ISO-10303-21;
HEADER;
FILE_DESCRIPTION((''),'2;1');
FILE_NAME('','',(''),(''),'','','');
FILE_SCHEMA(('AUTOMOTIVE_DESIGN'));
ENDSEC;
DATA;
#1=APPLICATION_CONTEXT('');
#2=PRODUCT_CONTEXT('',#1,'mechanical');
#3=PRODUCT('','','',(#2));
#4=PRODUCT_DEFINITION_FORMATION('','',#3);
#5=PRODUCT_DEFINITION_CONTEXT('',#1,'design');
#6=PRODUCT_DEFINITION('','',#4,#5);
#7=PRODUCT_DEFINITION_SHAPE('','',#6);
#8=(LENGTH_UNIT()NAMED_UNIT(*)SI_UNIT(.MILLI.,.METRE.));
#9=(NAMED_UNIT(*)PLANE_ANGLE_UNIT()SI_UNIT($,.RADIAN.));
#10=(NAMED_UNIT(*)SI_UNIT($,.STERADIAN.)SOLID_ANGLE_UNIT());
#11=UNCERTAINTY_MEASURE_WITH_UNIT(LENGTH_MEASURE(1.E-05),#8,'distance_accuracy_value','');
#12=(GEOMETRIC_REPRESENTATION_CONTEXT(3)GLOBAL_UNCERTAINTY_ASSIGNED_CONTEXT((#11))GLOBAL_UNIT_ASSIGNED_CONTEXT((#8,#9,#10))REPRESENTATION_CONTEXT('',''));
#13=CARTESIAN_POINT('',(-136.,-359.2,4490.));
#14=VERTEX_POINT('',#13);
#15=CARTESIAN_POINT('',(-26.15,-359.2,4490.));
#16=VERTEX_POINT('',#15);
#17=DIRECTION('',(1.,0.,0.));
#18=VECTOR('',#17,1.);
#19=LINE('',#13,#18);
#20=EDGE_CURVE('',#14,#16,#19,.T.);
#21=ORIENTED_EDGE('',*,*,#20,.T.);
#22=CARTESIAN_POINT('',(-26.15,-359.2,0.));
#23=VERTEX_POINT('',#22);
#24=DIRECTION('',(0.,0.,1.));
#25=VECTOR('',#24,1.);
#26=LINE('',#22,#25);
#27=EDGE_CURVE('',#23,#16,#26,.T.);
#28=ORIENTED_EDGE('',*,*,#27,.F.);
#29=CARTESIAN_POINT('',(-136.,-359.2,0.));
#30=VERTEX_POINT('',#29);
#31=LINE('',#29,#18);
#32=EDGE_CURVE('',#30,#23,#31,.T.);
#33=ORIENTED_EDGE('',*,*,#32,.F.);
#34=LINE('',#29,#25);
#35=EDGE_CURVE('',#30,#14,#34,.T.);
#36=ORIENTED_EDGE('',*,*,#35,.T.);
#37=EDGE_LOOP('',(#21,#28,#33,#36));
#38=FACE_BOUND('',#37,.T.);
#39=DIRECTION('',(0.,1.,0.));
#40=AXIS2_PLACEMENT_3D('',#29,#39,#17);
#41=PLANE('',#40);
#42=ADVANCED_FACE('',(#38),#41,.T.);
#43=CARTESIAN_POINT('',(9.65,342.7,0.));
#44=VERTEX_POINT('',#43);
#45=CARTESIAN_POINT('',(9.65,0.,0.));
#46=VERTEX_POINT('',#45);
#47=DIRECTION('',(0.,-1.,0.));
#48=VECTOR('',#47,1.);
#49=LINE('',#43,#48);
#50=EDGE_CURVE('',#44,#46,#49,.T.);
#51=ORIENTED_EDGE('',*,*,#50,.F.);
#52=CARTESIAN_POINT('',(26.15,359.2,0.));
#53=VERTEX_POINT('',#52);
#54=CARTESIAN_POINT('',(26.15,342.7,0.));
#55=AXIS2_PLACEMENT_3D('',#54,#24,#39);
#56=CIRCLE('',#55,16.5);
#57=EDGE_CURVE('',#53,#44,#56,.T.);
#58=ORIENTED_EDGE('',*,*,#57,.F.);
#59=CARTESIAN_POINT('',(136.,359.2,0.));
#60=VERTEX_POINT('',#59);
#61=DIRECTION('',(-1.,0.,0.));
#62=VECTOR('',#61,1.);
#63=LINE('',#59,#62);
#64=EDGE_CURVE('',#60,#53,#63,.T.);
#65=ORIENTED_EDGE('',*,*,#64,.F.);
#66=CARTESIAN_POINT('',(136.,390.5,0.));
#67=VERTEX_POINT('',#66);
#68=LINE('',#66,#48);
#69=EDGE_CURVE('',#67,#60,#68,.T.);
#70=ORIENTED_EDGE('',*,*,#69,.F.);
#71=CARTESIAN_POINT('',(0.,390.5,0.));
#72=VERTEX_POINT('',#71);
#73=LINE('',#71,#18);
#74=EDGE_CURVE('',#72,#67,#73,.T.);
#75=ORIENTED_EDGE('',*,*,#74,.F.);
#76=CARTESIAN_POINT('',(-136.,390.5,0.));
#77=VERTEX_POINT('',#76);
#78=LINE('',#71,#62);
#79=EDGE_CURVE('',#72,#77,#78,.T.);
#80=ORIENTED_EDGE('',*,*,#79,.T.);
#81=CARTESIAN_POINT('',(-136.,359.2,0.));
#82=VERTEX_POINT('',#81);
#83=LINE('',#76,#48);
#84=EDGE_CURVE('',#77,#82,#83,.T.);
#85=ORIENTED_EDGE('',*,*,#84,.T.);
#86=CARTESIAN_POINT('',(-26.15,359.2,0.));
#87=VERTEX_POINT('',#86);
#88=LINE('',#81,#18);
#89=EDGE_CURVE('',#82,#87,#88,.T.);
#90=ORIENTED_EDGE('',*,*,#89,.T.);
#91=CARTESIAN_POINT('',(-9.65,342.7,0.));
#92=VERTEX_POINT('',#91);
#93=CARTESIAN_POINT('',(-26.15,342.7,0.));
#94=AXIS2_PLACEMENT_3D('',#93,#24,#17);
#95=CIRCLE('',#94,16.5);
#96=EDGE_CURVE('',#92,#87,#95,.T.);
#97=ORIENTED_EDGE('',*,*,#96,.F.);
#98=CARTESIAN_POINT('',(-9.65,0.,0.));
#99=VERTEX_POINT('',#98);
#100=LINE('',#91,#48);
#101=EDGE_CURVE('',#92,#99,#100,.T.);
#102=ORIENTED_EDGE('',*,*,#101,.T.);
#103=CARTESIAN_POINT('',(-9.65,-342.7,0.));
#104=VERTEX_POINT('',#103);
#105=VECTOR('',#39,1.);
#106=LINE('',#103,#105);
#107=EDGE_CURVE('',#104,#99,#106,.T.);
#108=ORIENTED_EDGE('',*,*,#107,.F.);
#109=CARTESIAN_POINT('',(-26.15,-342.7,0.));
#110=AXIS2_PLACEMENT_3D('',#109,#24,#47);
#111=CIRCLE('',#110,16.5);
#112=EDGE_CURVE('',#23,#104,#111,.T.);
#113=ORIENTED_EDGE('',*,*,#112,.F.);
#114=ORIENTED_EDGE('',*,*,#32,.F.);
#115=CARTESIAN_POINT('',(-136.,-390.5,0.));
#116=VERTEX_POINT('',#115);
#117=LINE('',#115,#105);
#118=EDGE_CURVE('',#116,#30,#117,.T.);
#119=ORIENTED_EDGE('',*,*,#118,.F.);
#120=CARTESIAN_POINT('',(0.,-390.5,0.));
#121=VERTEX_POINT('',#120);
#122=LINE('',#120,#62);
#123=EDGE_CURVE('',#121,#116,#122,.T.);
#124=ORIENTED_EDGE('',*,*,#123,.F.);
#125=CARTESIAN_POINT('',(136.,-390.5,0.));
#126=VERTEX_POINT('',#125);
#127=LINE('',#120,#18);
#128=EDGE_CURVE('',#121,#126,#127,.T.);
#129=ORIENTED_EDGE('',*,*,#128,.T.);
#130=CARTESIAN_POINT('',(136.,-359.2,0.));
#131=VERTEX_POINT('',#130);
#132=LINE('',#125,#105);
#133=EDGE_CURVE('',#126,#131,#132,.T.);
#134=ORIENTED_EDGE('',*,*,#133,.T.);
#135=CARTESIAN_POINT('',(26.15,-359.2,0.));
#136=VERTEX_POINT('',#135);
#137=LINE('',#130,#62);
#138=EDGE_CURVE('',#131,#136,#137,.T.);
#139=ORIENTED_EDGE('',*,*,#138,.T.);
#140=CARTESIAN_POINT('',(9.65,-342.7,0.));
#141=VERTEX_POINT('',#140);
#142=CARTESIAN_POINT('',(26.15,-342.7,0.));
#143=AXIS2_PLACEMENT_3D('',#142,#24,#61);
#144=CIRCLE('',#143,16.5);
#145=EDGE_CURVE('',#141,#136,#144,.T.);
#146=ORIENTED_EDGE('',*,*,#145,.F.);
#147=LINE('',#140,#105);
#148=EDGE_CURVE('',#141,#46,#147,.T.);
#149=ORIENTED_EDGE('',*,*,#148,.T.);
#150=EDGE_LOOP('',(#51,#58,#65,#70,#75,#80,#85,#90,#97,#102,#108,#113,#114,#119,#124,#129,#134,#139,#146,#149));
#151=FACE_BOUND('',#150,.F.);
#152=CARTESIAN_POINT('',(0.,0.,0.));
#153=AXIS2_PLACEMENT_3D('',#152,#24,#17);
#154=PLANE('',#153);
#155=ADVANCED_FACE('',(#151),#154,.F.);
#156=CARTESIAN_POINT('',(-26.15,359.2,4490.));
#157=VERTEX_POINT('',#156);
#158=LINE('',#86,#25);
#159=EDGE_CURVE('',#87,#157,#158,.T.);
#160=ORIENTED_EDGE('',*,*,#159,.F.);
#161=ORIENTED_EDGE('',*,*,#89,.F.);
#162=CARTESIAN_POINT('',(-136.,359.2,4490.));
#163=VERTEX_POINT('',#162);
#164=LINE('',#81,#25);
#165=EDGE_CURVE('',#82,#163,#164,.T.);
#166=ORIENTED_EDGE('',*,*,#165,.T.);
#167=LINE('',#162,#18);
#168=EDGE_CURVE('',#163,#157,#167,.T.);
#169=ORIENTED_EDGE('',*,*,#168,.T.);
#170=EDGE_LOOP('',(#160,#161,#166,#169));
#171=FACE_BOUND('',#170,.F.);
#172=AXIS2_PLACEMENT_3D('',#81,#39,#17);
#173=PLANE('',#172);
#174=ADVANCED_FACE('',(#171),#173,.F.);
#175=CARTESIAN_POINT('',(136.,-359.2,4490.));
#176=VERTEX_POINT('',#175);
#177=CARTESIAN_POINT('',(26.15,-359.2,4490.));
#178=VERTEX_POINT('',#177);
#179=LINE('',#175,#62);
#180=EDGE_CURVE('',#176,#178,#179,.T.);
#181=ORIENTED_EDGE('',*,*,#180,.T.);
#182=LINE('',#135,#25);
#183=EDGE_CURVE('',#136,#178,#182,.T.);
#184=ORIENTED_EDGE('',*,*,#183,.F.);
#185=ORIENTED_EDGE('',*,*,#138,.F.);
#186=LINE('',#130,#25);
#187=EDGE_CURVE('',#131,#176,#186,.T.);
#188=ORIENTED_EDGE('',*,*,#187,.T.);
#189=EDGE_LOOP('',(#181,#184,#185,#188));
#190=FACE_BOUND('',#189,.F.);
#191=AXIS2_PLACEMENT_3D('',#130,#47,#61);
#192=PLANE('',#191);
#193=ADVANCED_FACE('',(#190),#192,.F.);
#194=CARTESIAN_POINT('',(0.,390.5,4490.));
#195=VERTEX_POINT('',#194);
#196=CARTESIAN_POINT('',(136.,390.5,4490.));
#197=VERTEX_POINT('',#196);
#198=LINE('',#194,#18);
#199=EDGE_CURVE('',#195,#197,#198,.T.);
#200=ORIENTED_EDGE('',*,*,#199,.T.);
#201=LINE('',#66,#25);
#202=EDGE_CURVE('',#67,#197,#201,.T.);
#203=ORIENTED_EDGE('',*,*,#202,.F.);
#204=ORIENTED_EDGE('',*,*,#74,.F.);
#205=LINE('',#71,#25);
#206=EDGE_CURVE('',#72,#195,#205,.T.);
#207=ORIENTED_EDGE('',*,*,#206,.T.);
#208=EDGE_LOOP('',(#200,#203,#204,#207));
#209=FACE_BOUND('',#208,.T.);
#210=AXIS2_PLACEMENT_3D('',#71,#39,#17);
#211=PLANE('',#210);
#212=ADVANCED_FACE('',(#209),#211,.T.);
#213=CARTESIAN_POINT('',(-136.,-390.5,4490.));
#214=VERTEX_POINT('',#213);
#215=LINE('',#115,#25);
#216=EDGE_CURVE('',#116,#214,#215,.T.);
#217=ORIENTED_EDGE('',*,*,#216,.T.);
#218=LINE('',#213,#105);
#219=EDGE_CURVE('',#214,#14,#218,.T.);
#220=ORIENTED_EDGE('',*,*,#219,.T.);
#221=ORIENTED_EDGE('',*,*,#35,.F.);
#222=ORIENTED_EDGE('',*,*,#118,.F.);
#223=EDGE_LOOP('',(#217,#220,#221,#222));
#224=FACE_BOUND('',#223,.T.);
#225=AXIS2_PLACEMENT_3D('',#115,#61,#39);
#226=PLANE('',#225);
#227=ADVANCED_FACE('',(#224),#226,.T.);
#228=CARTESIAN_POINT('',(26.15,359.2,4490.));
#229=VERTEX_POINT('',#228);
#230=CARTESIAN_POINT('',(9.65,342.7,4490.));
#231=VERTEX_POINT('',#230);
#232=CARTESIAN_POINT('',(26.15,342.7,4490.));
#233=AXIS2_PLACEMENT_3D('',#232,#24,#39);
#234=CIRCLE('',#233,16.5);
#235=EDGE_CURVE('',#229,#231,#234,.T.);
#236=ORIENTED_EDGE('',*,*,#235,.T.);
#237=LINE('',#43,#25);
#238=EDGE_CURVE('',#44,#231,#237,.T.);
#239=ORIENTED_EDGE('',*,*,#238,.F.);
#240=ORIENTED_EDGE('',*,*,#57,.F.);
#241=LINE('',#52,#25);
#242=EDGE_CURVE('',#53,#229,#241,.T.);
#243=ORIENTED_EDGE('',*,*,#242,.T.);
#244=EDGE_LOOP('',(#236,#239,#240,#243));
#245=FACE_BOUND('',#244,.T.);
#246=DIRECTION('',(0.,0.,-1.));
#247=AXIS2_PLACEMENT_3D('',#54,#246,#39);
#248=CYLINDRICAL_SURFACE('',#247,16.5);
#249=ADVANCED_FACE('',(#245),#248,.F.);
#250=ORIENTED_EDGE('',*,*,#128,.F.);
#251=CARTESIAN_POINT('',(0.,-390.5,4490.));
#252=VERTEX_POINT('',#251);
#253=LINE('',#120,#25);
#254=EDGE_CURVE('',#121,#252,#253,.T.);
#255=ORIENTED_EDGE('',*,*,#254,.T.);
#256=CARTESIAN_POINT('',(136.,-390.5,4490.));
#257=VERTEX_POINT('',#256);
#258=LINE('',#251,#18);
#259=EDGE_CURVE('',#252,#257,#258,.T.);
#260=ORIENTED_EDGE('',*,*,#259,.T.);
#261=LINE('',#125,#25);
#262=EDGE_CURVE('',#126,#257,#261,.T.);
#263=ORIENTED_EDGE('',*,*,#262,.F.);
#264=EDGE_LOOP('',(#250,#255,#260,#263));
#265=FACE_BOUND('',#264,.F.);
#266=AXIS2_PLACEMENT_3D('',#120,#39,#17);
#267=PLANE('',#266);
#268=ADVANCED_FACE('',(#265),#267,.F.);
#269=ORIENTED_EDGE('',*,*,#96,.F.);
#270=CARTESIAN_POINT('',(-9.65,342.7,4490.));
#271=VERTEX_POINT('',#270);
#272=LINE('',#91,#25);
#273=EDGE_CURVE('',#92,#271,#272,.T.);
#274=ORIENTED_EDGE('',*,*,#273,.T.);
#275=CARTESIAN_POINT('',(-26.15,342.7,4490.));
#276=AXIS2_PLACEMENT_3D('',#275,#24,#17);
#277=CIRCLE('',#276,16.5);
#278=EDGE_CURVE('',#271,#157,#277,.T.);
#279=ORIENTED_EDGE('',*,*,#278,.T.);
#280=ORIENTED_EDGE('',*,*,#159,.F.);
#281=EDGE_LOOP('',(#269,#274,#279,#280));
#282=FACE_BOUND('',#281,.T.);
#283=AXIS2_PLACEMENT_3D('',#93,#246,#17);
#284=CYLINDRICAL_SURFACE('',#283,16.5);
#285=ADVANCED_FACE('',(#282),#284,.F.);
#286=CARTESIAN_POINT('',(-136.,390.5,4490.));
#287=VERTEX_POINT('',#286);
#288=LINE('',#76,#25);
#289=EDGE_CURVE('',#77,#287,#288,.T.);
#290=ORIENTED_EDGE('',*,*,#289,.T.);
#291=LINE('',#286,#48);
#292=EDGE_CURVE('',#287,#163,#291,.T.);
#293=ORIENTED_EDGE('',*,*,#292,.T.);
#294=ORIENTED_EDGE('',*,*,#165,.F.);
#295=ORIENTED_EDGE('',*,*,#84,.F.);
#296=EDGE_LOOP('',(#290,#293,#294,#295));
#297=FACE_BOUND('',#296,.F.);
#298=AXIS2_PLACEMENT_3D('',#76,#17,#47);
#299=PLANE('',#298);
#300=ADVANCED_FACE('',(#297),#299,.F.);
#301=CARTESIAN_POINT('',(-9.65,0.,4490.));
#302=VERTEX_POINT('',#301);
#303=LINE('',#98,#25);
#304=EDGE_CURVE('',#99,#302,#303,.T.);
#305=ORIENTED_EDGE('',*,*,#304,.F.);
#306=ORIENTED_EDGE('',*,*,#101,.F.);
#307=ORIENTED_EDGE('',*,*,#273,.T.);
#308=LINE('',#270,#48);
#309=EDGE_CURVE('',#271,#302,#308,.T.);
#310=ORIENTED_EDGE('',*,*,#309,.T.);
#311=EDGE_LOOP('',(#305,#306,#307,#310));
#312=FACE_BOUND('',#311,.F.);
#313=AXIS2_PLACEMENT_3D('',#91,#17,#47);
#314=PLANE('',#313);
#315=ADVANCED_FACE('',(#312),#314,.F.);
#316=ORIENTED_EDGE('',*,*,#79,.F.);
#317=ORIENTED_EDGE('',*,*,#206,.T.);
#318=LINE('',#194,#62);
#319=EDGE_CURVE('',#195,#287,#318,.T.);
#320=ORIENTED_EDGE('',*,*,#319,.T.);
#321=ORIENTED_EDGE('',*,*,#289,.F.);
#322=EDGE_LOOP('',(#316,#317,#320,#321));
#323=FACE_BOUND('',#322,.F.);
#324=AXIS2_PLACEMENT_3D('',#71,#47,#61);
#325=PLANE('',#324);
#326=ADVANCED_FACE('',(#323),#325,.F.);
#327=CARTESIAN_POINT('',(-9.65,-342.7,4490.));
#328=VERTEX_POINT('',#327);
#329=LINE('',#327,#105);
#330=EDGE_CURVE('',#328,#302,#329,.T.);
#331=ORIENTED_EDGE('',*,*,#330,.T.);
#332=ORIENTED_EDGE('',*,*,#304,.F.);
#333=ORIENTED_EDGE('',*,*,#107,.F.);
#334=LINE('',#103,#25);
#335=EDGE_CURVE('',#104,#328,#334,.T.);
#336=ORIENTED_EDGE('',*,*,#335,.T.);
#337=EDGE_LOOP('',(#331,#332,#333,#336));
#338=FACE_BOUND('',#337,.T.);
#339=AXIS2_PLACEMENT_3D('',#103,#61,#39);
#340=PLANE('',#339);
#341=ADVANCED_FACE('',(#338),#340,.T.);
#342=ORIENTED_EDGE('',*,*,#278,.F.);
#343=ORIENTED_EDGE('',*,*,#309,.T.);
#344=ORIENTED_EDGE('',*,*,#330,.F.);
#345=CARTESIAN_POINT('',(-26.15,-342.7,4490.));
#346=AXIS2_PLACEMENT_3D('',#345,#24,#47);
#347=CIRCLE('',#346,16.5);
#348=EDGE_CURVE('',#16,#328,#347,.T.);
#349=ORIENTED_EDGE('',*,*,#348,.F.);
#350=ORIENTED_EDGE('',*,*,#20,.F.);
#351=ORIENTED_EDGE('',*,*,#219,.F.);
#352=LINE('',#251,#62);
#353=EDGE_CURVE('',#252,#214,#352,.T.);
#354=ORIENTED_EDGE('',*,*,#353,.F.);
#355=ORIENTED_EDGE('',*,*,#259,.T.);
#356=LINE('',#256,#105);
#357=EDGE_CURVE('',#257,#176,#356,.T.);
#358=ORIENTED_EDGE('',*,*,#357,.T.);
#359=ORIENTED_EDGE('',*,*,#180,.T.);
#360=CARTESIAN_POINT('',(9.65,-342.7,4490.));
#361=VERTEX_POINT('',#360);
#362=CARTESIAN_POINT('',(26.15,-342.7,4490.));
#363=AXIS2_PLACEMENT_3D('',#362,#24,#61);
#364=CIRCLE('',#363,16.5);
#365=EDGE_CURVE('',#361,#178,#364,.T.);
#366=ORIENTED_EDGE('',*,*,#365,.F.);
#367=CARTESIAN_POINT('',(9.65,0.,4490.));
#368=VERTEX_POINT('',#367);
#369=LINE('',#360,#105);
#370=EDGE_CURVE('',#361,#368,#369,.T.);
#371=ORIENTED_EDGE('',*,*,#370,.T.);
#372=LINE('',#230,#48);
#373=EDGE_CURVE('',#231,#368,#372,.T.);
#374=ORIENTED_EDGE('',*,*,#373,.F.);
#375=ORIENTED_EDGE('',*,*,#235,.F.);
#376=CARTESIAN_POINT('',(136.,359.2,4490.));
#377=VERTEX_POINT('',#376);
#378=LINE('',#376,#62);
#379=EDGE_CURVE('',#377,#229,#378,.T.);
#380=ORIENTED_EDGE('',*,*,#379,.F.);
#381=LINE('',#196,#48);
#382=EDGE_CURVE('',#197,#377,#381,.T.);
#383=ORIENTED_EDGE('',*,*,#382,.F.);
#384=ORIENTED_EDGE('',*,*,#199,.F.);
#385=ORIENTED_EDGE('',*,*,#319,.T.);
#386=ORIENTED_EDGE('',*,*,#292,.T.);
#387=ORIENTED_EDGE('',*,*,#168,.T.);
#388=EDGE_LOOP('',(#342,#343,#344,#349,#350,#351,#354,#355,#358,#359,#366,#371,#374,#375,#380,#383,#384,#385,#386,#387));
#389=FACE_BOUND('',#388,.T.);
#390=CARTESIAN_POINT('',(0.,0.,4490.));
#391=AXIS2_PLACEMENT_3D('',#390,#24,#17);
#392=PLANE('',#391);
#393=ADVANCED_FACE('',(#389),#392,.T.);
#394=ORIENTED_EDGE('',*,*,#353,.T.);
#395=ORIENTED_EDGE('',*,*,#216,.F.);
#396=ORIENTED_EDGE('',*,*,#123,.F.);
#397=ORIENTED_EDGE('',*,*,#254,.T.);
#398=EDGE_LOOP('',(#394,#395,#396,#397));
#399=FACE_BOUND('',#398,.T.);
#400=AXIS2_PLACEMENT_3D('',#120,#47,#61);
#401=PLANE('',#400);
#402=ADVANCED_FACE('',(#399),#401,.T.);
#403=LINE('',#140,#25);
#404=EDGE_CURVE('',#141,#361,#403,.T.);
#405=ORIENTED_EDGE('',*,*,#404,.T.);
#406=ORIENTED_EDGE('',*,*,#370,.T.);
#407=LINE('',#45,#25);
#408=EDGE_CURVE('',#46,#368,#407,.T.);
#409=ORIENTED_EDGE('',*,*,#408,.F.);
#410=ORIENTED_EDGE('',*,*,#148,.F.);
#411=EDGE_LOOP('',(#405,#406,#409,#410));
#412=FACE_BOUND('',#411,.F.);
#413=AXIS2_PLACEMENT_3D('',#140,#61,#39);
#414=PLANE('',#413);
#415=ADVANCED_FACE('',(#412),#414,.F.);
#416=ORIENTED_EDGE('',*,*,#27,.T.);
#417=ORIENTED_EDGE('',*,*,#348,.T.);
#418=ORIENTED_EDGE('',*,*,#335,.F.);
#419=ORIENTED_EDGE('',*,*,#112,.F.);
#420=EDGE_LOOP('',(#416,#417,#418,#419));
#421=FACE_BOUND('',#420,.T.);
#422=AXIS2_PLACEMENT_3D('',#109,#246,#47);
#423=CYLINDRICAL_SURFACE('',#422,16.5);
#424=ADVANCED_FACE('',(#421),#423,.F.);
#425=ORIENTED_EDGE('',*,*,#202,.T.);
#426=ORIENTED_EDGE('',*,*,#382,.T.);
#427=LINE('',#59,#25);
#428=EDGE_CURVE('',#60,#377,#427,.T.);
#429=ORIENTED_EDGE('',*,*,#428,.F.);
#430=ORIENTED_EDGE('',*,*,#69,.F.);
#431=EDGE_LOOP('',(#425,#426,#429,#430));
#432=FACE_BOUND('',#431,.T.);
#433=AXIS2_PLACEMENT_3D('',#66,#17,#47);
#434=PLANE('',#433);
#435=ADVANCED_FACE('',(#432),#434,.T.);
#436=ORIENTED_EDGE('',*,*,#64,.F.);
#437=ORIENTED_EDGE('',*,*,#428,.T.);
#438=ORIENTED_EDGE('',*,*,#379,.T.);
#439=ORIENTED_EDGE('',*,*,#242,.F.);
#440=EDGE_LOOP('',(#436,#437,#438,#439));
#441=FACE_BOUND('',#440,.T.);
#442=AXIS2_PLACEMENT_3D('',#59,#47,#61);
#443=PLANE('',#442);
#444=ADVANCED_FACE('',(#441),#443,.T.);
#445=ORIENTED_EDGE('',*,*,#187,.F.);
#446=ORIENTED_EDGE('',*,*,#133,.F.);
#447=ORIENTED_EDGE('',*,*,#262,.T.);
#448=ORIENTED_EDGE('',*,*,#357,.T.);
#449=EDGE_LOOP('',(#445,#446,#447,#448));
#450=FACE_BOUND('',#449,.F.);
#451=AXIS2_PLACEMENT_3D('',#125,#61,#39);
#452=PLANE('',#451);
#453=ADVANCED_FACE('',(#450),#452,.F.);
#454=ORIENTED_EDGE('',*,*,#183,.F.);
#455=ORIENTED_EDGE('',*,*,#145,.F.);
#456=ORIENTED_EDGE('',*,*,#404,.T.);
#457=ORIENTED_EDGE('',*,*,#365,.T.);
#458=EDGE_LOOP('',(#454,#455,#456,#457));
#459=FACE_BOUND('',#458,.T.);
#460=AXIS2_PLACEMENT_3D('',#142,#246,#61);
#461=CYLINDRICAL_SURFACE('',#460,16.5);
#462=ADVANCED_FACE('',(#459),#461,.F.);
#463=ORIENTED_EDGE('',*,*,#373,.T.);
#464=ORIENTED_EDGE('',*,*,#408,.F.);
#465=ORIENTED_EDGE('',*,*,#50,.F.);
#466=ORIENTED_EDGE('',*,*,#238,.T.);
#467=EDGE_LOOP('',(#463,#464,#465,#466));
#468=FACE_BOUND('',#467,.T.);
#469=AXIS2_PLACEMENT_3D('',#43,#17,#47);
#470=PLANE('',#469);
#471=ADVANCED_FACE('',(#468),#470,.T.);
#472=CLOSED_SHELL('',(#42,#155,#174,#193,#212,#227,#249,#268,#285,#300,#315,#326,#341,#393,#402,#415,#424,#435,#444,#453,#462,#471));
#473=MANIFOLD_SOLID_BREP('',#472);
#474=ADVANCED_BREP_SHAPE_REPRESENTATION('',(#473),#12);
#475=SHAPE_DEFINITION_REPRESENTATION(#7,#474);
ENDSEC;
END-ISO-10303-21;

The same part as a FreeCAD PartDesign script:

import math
import FreeCAD as App
import Part
import Sketcher

V = App.Vector
Q = App.Units.Quantity

doc = App.newDocument("Part")
body = doc.addObject("PartDesign::Body", "Body")

sketch1 = doc.addObject("Sketcher::SketchObject", "Sketch")
body.addObject(sketch1)
sketch1.AttachmentSupport = (doc.XY_Plane, [""])
sketch1.MapMode = "FlatFace"
sketch1.addGeometry([
    Part.LineSegment(V(-136, -359, 0), V(-136, -390, 0)),
    Part.LineSegment(V(-136, -390, 0), V(136, -390, 0)),
    Part.LineSegment(V(136, -390, 0), V(136, -359, 0)),
    Part.LineSegment(V(136, -359, 0), V(26, -359, 0)),
    Part.ArcOfCircle(Part.Circle(V(26, -343, 0), V(0, 0, 1), 16), math.radians(180), math.radians(270)),
    Part.LineSegment(V(10, -343, 0), V(10, 343, 0)),
    Part.ArcOfCircle(Part.Circle(V(26, 343, 0), V(0, 0, 1), 16), math.radians(90), math.radians(180)),
    Part.LineSegment(V(26, 359, 0), V(136, 359, 0)),
    Part.LineSegment(V(136, 359, 0), V(136, 390, 0)),
    Part.LineSegment(V(136, 390, 0), V(-136, 390, 0)),
    Part.LineSegment(V(-136, 390, 0), V(-136, 359, 0)),
    Part.LineSegment(V(-136, 359, 0), V(-26, 359, 0)),
    Part.ArcOfCircle(Part.Circle(V(-26, 343, 0), V(0, 0, 1), 16), math.radians(0), math.radians(90)),
    Part.LineSegment(V(-10, 343, 0), V(-10, -343, 0)),
    Part.ArcOfCircle(Part.Circle(V(-26, -343, 0), V(0, 0, 1), 16), math.radians(-90), math.radians(0)),
    Part.LineSegment(V(-26, -359, 0), V(-136, -359, 0)),
], False)
sketch1.addConstraint([
    Sketcher.Constraint("Coincident", 0, 2, 1, 1),
    Sketcher.Constraint("Coincident", 1, 2, 2, 1),
    Sketcher.Constraint("Coincident", 2, 2, 3, 1),
    Sketcher.Constraint("Tangent", 3, 2, 4, 2),
    Sketcher.Constraint("Tangent", 4, 1, 5, 1),
    Sketcher.Constraint("Tangent", 5, 2, 6, 2),
    Sketcher.Constraint("Tangent", 6, 1, 7, 1),
    Sketcher.Constraint("Coincident", 7, 2, 8, 1),
    Sketcher.Constraint("Coincident", 8, 2, 9, 1),
    Sketcher.Constraint("Coincident", 9, 2, 10, 1),
    Sketcher.Constraint("Coincident", 10, 2, 11, 1),
    Sketcher.Constraint("Tangent", 11, 2, 12, 2),
    Sketcher.Constraint("Tangent", 12, 1, 13, 1),
    Sketcher.Constraint("Tangent", 13, 2, 14, 2),
    Sketcher.Constraint("Tangent", 14, 1, 15, 1),
    Sketcher.Constraint("Coincident", 15, 2, 0, 1),
    Sketcher.Constraint("Vertical", 0),
    Sketcher.Constraint("Horizontal", 1),
    Sketcher.Constraint("Vertical", 2),
    Sketcher.Constraint("Horizontal", 3),
    Sketcher.Constraint("Vertical", 5),
    Sketcher.Constraint("Horizontal", 7),
    Sketcher.Constraint("Vertical", 8),
    Sketcher.Constraint("Horizontal", 9),
    Sketcher.Constraint("Vertical", 10),
    Sketcher.Constraint("Horizontal", 11),
    Sketcher.Constraint("Vertical", 13),
    Sketcher.Constraint("Horizontal", 15),
    Sketcher.Constraint("Equal", 4, 6),
    Sketcher.Constraint("Equal", 6, 12),
    Sketcher.Constraint("Equal", 12, 14),
    Sketcher.Constraint("Symmetric", 4, 3, 12, 3, -1, 1),
    Sketcher.Constraint("Symmetric", 0, 2, 8, 2, -1, 1),
    Sketcher.Constraint("Symmetric", 7, 2, 10, 2, -2),
    Sketcher.Constraint("Symmetric", 2, 2, 15, 2, -2),
    Sketcher.Constraint("Radius", 4, Q("16.5 mm")),
    Sketcher.Constraint("DistanceY", 0, 2, 0, 1, Q("31.3 mm")),
    Sketcher.Constraint("DistanceX", 0, 2, -1, 1, Q("136 mm")),
    Sketcher.Constraint("DistanceY", 0, 2, -1, 1, Q("390.5 mm")),
    Sketcher.Constraint("DistanceX", -1, 1, 4, 1, Q("9.65 mm")),
])
pad1 = doc.addObject("PartDesign::Pad", "Pad")
body.addObject(pad1)
pad1.Profile = sketch1
pad1.Length = 4490

doc.recompute()
